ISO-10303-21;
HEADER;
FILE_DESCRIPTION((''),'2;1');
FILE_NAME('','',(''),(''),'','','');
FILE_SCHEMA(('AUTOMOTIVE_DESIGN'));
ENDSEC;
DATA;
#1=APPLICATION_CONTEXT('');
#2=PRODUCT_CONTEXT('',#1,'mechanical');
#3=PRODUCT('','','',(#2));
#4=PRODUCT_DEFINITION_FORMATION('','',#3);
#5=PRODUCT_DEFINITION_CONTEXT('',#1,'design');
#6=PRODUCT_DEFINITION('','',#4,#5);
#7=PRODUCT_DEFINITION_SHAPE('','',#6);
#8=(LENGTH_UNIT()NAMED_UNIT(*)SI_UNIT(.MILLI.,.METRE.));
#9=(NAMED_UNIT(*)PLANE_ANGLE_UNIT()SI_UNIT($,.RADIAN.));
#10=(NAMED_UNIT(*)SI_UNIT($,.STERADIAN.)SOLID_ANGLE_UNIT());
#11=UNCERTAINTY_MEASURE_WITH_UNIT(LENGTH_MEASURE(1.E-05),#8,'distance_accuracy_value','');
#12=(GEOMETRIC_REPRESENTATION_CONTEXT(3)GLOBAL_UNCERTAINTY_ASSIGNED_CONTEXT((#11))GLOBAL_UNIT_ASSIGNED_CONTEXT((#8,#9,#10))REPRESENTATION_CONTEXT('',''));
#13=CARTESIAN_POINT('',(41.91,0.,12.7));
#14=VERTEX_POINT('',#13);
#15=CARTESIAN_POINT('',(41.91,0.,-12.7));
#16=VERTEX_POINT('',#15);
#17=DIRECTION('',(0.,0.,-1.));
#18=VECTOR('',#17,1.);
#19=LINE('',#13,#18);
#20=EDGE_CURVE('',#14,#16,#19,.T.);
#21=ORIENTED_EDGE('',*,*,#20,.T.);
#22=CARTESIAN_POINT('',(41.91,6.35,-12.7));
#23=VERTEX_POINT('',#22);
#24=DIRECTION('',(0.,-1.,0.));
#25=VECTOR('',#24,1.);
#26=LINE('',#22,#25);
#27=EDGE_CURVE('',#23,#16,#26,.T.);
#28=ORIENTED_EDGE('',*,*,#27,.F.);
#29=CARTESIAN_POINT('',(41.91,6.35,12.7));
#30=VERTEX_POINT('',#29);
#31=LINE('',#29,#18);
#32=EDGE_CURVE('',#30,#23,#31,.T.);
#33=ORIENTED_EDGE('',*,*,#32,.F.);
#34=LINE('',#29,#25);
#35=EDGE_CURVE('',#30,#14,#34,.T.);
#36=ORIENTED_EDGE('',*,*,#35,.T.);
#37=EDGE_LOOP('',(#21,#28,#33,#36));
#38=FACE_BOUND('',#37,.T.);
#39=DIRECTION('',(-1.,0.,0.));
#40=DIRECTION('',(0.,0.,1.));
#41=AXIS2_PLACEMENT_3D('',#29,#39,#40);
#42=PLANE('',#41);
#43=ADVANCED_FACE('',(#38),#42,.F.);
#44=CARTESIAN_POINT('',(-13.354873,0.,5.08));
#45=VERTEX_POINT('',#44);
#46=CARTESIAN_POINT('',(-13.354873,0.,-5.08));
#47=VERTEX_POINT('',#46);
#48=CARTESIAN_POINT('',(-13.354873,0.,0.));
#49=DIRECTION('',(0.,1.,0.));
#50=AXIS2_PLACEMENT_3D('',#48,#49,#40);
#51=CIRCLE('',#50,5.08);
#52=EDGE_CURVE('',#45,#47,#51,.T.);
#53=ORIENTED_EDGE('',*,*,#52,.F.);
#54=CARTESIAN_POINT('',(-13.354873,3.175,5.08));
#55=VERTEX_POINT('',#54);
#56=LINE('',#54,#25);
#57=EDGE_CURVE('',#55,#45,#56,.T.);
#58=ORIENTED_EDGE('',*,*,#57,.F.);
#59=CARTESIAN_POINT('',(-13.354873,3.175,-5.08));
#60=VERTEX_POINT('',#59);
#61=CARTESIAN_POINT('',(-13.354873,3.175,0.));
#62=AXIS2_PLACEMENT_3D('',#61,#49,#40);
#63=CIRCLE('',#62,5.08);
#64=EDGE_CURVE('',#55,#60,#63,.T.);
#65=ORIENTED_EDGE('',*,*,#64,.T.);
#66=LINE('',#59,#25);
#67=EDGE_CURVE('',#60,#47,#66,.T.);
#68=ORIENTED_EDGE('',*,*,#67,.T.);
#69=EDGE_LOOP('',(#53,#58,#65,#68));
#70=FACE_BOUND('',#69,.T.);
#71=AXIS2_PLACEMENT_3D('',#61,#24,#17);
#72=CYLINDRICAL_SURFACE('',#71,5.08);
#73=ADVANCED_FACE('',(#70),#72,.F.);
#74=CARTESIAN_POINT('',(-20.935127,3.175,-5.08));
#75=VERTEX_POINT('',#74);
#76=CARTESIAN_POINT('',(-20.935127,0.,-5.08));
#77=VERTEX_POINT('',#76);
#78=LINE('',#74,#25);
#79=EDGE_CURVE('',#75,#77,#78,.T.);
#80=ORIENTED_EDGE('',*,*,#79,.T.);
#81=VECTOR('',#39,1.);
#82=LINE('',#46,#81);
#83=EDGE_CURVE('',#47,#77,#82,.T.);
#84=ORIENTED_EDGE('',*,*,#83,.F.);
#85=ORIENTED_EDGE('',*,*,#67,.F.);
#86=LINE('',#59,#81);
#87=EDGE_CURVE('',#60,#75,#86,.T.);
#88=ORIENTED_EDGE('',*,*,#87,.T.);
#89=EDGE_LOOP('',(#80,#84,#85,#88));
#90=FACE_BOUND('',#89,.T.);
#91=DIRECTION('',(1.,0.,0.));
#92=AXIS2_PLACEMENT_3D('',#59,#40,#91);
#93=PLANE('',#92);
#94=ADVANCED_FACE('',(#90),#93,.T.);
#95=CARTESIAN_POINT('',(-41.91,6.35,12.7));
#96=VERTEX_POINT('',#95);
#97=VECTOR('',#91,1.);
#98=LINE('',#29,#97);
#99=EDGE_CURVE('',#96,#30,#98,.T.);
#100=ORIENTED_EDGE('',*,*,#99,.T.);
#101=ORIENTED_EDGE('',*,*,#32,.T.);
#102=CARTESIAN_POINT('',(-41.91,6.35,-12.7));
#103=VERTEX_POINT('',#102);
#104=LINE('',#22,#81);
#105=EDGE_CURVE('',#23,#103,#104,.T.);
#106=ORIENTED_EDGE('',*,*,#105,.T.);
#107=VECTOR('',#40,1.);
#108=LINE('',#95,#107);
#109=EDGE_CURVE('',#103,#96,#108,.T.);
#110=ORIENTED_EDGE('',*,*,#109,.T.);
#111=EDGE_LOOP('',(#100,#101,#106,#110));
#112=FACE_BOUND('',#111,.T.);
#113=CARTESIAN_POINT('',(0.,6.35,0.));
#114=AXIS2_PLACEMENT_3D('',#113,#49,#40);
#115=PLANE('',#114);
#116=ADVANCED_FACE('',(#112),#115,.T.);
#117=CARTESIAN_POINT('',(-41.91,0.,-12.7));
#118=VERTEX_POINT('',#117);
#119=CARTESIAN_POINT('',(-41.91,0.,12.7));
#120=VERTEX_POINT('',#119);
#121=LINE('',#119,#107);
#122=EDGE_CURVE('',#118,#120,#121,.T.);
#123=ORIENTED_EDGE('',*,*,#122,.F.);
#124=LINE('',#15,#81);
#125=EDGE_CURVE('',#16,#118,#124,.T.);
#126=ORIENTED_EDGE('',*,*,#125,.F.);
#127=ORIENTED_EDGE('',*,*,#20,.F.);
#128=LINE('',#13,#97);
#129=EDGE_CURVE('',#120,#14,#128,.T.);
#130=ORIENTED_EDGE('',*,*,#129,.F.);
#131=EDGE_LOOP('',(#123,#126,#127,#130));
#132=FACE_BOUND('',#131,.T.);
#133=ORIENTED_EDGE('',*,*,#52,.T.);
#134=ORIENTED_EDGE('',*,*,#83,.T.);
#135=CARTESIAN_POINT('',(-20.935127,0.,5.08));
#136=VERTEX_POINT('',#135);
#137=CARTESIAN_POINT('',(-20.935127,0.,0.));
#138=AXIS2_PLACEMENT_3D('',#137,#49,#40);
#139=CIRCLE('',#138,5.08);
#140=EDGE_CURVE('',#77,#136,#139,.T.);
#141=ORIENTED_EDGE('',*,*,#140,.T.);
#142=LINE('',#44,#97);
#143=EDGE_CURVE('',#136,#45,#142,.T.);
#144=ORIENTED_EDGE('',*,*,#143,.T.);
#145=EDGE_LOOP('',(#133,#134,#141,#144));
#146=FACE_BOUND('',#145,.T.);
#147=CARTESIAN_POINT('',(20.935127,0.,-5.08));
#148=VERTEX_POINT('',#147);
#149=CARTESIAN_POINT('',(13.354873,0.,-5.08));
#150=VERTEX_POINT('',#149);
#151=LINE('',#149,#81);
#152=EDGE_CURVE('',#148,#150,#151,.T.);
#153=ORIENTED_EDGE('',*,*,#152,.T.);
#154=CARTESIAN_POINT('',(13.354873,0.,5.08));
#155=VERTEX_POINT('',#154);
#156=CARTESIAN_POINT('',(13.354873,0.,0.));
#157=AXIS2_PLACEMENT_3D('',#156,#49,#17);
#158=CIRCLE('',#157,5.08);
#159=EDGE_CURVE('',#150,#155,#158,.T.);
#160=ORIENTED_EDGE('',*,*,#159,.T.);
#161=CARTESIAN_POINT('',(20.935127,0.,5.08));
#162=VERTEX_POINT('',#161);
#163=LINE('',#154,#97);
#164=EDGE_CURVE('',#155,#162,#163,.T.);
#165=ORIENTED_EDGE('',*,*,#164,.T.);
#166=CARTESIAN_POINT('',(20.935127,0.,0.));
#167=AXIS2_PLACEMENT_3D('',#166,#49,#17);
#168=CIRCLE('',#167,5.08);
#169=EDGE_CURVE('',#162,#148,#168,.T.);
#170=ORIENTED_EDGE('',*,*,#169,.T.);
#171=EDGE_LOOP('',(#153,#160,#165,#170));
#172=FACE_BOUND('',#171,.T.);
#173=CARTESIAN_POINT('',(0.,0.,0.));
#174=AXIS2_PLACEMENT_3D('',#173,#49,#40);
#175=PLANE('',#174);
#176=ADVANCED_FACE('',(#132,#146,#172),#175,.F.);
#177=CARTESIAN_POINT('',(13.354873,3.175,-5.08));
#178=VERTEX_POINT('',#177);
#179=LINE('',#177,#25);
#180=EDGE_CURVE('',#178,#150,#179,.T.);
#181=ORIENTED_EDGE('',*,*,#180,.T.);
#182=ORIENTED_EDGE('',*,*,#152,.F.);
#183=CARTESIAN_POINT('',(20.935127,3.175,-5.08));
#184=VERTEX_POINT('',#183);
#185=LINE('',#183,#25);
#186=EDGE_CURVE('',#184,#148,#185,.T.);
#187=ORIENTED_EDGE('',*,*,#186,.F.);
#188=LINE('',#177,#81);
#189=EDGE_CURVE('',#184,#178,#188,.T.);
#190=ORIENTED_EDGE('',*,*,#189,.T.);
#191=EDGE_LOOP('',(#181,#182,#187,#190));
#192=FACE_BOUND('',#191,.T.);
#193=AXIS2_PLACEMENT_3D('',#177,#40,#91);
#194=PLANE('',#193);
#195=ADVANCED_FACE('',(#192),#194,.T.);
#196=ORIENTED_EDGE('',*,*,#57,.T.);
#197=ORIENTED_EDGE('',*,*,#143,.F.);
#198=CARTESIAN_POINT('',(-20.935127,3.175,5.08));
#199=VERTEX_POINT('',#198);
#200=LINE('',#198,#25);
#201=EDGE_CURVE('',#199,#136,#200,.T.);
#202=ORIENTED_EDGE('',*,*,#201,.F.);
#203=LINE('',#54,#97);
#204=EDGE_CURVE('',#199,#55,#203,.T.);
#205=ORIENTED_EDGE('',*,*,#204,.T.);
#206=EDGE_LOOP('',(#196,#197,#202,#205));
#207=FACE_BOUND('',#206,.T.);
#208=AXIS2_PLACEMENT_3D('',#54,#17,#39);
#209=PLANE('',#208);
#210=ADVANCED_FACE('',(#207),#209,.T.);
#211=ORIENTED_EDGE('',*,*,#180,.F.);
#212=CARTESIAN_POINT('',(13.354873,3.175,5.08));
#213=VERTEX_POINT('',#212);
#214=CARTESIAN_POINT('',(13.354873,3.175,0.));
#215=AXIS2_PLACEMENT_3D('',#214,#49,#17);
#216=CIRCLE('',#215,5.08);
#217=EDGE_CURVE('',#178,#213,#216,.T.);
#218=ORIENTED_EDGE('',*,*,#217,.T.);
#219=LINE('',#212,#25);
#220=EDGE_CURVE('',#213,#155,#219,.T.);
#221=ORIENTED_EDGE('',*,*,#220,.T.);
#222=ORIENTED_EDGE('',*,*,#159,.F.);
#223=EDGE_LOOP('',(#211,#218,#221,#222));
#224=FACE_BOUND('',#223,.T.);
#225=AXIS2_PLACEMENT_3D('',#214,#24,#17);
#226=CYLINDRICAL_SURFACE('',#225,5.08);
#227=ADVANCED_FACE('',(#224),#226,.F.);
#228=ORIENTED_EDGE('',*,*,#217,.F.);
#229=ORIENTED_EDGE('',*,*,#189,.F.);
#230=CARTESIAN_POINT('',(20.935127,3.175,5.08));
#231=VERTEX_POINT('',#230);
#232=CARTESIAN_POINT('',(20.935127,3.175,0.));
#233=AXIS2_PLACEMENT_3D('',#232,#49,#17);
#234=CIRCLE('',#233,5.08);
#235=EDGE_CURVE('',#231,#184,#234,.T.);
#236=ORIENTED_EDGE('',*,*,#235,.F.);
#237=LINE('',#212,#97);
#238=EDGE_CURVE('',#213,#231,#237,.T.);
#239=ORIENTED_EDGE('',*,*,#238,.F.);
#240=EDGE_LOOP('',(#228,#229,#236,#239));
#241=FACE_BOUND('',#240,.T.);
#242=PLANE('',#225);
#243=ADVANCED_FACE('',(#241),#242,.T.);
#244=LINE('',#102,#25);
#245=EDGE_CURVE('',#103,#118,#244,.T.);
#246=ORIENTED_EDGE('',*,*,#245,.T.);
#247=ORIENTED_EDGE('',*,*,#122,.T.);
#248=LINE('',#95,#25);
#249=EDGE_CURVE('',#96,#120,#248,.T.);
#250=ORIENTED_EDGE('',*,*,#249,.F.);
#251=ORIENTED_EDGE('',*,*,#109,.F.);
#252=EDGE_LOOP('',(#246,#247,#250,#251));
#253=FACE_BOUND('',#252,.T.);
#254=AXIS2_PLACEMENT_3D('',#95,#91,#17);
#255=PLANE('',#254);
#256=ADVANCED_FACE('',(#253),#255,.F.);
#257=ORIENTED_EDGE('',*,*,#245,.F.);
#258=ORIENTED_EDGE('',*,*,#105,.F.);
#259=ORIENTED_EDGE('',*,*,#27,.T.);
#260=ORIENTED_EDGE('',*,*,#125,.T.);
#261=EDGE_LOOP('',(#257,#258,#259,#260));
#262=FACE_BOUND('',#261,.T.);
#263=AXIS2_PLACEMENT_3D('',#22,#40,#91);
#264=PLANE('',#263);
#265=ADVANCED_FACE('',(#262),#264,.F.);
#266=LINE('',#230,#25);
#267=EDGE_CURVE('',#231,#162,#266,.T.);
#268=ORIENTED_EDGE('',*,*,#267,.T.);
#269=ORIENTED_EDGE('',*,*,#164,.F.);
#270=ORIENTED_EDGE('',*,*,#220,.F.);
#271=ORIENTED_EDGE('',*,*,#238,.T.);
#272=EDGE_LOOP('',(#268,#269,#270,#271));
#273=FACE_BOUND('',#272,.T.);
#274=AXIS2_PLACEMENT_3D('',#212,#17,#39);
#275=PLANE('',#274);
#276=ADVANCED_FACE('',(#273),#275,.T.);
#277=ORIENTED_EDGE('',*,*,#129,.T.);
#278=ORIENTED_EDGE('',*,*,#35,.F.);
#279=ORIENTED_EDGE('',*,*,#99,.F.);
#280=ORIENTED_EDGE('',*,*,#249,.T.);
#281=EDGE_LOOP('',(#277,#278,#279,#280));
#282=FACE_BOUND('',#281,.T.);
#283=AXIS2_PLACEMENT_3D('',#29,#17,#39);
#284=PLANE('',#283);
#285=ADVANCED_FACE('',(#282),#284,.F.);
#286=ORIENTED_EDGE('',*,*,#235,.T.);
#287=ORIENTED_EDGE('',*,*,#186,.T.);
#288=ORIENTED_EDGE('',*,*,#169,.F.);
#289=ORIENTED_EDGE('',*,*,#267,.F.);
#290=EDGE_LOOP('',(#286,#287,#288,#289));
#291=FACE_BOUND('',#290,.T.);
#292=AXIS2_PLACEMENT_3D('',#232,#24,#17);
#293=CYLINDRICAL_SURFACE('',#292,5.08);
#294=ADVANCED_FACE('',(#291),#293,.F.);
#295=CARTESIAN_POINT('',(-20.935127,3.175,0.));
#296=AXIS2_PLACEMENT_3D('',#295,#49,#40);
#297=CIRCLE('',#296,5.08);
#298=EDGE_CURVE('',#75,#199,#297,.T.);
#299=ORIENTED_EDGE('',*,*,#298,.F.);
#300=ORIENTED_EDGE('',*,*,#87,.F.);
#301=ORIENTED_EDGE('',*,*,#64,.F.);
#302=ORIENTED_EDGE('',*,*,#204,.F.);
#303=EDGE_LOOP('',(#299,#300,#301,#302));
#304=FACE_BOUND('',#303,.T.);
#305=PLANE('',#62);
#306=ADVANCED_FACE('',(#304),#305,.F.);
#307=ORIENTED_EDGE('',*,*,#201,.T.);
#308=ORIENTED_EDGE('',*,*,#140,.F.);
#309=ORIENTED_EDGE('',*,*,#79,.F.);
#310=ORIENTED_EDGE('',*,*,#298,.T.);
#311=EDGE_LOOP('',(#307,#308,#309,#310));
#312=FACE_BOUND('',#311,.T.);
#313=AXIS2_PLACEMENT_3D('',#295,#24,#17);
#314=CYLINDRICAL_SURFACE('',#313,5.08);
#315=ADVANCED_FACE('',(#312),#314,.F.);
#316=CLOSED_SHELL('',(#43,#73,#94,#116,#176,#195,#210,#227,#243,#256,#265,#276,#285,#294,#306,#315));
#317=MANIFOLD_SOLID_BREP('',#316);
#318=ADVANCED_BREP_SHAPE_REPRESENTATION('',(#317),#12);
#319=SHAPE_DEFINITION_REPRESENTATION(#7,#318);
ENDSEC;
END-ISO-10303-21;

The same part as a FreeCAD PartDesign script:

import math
import FreeCAD as App
import Part
import Sketcher
from FreeCAD import Vector
Q = App.Units.Quantity

doc = App.newDocument("Part")
params = doc.addObject("Spreadsheet::Sheet", "Params")
for row, (alias, value) in enumerate([
    ("sketch1_height", "1 in"),
    ("sketch1_width", "3.3 in"),
    ("pad1_length", "0.25 in"),
    ("sketch2_radius", "0.2 in"),
    ("pocket1_length", "0.125 in"),
], start=1):
    params.set(f"A{row}", alias)
    params.set(f"B{row}", "=" + value)
    params.setAlias(f"B{row}", alias)

body = doc.addObject("PartDesign::Body", "Body")

sketch1 = body.newObject("Sketcher::SketchObject", "Sketch")
sketch1.AttachmentSupport = (doc.getObject("XZ_Plane"), [""])
sketch1.MapMode = "FlatFace"
sketch1.addGeometry([
    Part.LineSegment(Vector(-42, -13, 0), Vector(-42, 13, 0)),
    Part.LineSegment(Vector(-42, 13, 0), Vector(42, 13, 0)),
    Part.LineSegment(Vector(42, 13, 0), Vector(42, -13, 0)),
    Part.LineSegment(Vector(42, -13, 0), Vector(-42, -13, 0)),
], False)
sketch1.addConstraint([
    Sketcher.Constraint("Coincident", 0, 2, 1, 1),
    Sketcher.Constraint("Coincident", 1, 2, 2, 1),
    Sketcher.Constraint("Coincident", 2, 2, 3, 1),
    Sketcher.Constraint("Coincident", 3, 2, 0, 1),
    Sketcher.Constraint("Vertical", 0),
    Sketcher.Constraint("Horizontal", 1),
    Sketcher.Constraint("Vertical", 2),
    Sketcher.Constraint("Horizontal", 3),
    Sketcher.Constraint("Symmetric", 0, 2, 2, 2, -1, 1),
    Sketcher.Constraint("DistanceY", 0, 1, 0, 2, Q("1 in")),
    Sketcher.Constraint("DistanceX", 1, 1, 1, 2, Q("3.3 in")),
])
sketch1.setExpression("Constraints[9]", "Params.sketch1_height")
sketch1.setExpression("Constraints[10]", "Params.sketch1_width")
pad1 = body.newObject("PartDesign::Pad", "Pad")
pad1.Profile = sketch1
pad1.setExpression("Length", "Params.pad1_length")
pad1.Reversed = True

sketch2 = body.newObject("Sketcher::SketchObject", "Sketch001")
sketch2.AttachmentSupport = (doc.getObject("XZ_Plane"), [""])
sketch2.MapMode = "FlatFace"
sketch2.addGeometry([
    Part.LineSegment(Vector(-21, 5, 0), Vector(-13, 5, 0)),
    Part.ArcOfCircle(Part.Circle(Vector(-13, 0, 0), Vector(0, 0, 1), 5), math.radians(-90), math.radians(90)),
    Part.LineSegment(Vector(-13, -5, 0), Vector(-21, -5, 0)),
    Part.ArcOfCircle(Part.Circle(Vector(-21, 0, 0), Vector(0, 0, 1), 5), math.radians(90), math.radians(270)),
    Part.LineSegment(Vector(13, 5, 0), Vector(21, 5, 0)),
    Part.ArcOfCircle(Part.Circle(Vector(21, 0, 0), Vector(0, 0, 1), 5), math.radians(-90), math.radians(90)),
    Part.LineSegment(Vector(21, -5, 0), Vector(13, -5, 0)),
    Part.ArcOfCircle(Part.Circle(Vector(13, 0, 0), Vector(0, 0, 1), 5), math.radians(90), math.radians(270)),
], False)
sketch2.addConstraint([
    Sketcher.Constraint("Tangent", 0, 2, 1, 2),
    Sketcher.Constraint("Tangent", 1, 1, 2, 1),
    Sketcher.Constraint("Tangent", 2, 2, 3, 2),
    Sketcher.Constraint("Tangent", 3, 1, 0, 1),
    Sketcher.Constraint("Tangent", 4, 2, 5, 2),
    Sketcher.Constraint("Tangent", 5, 1, 6, 1),
    Sketcher.Constraint("Tangent", 6, 2, 7, 2),
    Sketcher.Constraint("Tangent", 7, 1, 4, 1),
    Sketcher.Constraint("Horizontal", 0),
    Sketcher.Constraint("Horizontal", 2),
    Sketcher.Constraint("Horizontal", 4),
    Sketcher.Constraint("Horizontal", 6),
    Sketcher.Constraint("Equal", 3, 5),
    Sketcher.Constraint("Symmetric", 3, 3, 5, 3, -1, 1),
    Sketcher.Constraint("Symmetric", 1, 3, 7, 3, -2),
    Sketcher.Constraint("Radius", 1, Q("0.2 in")),
    Sketcher.Constraint("DistanceX", 1, 3, 5, 3, Q("1.35 in")),
    Sketcher.Constraint("DistanceX", 0, 1, 0, 2, Q("7.580254 mm")),
])
sketch2.setExpression("Constraints[15]", "Params.sketch2_radius")
pocket1 = body.newObject("PartDesign::Pocket", "Pocket")
pocket1.Profile = sketch2
pocket1.setExpression("Length", "Params.pocket1_length")

doc.recompute()
